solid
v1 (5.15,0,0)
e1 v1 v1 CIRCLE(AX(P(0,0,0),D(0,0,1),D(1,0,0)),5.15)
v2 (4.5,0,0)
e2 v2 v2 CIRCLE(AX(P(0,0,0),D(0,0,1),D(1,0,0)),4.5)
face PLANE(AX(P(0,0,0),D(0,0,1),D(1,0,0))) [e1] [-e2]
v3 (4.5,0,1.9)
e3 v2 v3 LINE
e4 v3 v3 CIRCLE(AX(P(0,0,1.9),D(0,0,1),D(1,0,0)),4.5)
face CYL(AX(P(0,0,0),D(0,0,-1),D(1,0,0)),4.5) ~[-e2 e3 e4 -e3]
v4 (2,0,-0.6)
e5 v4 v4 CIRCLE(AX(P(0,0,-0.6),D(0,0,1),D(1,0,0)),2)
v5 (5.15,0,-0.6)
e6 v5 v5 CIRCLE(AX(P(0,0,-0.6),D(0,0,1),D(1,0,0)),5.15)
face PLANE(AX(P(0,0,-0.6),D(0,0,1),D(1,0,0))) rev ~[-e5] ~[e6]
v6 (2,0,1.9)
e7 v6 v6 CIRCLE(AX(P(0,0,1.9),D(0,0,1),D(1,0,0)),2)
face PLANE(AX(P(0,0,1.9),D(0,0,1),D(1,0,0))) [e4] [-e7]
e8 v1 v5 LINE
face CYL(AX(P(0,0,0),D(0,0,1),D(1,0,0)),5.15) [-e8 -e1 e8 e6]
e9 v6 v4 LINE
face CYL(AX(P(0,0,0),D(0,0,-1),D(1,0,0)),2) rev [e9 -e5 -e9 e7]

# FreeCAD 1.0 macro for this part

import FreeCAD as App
import Part
import Sketcher

V = App.Vector
Q = App.Units.Quantity

doc = App.newDocument("Part")
body = doc.addObject("PartDesign::Body", "Body")

# Sketch on XY plane
sketch1 = body.newObject("Sketcher::SketchObject", "Sketch")
sketch1.AttachmentSupport = (doc.getObject("XY_Plane"), [""])
sketch1.MapMode = "FlatFace"
sketch1.addGeometry(Part.Circle(V(0, 0, 0), V(0, 0, 1), 4.5), False)
sketch1.addGeometry(Part.Circle(V(0, 0, 0), V(0, 0, 1), 2), False)
sketch1.addConstraint(Sketcher.Constraint("Coincident", 0, 3, -1, 1))
sketch1.addConstraint(Sketcher.Constraint("Coincident", 1, 3, -1, 1))
sketch1.addConstraint(Sketcher.Constraint("Diameter", 0, Q("9 mm")))
sketch1.addConstraint(Sketcher.Constraint("Diameter", 1, Q("4 mm")))
pad1 = body.newObject("PartDesign::Pad", "Pad")
pad1.Profile = sketch1
pad1.Length = 1.9

# Sketch on XY plane
sketch2 = body.newObject("Sketcher::SketchObject", "Sketch001")
sketch2.AttachmentSupport = (doc.getObject("XY_Plane"), [""])
sketch2.MapMode = "FlatFace"
sketch2.addGeometry(Part.Circle(V(0, 0, 0), V(0, 0, 1), 5.2), False)
sketch2.addGeometry(Part.Circle(V(0, 0, 0), V(0, 0, 1), 2), False)
sketch2.addConstraint(Sketcher.Constraint("Coincident", 0, 3, -1, 1))
sketch2.addConstraint(Sketcher.Constraint("Coincident", 1, 3, -1, 1))
sketch2.addConstraint(Sketcher.Constraint("Diameter", 1, Q("4 mm")))
sketch2.addConstraint(Sketcher.Constraint("Diameter", 0, Q("10.3 mm")))
pad2 = body.newObject("PartDesign::Pad", "Pad001")
pad2.Profile = sketch2
pad2.Length = 0.6
pad2.Reversed = True

doc.recompute()
